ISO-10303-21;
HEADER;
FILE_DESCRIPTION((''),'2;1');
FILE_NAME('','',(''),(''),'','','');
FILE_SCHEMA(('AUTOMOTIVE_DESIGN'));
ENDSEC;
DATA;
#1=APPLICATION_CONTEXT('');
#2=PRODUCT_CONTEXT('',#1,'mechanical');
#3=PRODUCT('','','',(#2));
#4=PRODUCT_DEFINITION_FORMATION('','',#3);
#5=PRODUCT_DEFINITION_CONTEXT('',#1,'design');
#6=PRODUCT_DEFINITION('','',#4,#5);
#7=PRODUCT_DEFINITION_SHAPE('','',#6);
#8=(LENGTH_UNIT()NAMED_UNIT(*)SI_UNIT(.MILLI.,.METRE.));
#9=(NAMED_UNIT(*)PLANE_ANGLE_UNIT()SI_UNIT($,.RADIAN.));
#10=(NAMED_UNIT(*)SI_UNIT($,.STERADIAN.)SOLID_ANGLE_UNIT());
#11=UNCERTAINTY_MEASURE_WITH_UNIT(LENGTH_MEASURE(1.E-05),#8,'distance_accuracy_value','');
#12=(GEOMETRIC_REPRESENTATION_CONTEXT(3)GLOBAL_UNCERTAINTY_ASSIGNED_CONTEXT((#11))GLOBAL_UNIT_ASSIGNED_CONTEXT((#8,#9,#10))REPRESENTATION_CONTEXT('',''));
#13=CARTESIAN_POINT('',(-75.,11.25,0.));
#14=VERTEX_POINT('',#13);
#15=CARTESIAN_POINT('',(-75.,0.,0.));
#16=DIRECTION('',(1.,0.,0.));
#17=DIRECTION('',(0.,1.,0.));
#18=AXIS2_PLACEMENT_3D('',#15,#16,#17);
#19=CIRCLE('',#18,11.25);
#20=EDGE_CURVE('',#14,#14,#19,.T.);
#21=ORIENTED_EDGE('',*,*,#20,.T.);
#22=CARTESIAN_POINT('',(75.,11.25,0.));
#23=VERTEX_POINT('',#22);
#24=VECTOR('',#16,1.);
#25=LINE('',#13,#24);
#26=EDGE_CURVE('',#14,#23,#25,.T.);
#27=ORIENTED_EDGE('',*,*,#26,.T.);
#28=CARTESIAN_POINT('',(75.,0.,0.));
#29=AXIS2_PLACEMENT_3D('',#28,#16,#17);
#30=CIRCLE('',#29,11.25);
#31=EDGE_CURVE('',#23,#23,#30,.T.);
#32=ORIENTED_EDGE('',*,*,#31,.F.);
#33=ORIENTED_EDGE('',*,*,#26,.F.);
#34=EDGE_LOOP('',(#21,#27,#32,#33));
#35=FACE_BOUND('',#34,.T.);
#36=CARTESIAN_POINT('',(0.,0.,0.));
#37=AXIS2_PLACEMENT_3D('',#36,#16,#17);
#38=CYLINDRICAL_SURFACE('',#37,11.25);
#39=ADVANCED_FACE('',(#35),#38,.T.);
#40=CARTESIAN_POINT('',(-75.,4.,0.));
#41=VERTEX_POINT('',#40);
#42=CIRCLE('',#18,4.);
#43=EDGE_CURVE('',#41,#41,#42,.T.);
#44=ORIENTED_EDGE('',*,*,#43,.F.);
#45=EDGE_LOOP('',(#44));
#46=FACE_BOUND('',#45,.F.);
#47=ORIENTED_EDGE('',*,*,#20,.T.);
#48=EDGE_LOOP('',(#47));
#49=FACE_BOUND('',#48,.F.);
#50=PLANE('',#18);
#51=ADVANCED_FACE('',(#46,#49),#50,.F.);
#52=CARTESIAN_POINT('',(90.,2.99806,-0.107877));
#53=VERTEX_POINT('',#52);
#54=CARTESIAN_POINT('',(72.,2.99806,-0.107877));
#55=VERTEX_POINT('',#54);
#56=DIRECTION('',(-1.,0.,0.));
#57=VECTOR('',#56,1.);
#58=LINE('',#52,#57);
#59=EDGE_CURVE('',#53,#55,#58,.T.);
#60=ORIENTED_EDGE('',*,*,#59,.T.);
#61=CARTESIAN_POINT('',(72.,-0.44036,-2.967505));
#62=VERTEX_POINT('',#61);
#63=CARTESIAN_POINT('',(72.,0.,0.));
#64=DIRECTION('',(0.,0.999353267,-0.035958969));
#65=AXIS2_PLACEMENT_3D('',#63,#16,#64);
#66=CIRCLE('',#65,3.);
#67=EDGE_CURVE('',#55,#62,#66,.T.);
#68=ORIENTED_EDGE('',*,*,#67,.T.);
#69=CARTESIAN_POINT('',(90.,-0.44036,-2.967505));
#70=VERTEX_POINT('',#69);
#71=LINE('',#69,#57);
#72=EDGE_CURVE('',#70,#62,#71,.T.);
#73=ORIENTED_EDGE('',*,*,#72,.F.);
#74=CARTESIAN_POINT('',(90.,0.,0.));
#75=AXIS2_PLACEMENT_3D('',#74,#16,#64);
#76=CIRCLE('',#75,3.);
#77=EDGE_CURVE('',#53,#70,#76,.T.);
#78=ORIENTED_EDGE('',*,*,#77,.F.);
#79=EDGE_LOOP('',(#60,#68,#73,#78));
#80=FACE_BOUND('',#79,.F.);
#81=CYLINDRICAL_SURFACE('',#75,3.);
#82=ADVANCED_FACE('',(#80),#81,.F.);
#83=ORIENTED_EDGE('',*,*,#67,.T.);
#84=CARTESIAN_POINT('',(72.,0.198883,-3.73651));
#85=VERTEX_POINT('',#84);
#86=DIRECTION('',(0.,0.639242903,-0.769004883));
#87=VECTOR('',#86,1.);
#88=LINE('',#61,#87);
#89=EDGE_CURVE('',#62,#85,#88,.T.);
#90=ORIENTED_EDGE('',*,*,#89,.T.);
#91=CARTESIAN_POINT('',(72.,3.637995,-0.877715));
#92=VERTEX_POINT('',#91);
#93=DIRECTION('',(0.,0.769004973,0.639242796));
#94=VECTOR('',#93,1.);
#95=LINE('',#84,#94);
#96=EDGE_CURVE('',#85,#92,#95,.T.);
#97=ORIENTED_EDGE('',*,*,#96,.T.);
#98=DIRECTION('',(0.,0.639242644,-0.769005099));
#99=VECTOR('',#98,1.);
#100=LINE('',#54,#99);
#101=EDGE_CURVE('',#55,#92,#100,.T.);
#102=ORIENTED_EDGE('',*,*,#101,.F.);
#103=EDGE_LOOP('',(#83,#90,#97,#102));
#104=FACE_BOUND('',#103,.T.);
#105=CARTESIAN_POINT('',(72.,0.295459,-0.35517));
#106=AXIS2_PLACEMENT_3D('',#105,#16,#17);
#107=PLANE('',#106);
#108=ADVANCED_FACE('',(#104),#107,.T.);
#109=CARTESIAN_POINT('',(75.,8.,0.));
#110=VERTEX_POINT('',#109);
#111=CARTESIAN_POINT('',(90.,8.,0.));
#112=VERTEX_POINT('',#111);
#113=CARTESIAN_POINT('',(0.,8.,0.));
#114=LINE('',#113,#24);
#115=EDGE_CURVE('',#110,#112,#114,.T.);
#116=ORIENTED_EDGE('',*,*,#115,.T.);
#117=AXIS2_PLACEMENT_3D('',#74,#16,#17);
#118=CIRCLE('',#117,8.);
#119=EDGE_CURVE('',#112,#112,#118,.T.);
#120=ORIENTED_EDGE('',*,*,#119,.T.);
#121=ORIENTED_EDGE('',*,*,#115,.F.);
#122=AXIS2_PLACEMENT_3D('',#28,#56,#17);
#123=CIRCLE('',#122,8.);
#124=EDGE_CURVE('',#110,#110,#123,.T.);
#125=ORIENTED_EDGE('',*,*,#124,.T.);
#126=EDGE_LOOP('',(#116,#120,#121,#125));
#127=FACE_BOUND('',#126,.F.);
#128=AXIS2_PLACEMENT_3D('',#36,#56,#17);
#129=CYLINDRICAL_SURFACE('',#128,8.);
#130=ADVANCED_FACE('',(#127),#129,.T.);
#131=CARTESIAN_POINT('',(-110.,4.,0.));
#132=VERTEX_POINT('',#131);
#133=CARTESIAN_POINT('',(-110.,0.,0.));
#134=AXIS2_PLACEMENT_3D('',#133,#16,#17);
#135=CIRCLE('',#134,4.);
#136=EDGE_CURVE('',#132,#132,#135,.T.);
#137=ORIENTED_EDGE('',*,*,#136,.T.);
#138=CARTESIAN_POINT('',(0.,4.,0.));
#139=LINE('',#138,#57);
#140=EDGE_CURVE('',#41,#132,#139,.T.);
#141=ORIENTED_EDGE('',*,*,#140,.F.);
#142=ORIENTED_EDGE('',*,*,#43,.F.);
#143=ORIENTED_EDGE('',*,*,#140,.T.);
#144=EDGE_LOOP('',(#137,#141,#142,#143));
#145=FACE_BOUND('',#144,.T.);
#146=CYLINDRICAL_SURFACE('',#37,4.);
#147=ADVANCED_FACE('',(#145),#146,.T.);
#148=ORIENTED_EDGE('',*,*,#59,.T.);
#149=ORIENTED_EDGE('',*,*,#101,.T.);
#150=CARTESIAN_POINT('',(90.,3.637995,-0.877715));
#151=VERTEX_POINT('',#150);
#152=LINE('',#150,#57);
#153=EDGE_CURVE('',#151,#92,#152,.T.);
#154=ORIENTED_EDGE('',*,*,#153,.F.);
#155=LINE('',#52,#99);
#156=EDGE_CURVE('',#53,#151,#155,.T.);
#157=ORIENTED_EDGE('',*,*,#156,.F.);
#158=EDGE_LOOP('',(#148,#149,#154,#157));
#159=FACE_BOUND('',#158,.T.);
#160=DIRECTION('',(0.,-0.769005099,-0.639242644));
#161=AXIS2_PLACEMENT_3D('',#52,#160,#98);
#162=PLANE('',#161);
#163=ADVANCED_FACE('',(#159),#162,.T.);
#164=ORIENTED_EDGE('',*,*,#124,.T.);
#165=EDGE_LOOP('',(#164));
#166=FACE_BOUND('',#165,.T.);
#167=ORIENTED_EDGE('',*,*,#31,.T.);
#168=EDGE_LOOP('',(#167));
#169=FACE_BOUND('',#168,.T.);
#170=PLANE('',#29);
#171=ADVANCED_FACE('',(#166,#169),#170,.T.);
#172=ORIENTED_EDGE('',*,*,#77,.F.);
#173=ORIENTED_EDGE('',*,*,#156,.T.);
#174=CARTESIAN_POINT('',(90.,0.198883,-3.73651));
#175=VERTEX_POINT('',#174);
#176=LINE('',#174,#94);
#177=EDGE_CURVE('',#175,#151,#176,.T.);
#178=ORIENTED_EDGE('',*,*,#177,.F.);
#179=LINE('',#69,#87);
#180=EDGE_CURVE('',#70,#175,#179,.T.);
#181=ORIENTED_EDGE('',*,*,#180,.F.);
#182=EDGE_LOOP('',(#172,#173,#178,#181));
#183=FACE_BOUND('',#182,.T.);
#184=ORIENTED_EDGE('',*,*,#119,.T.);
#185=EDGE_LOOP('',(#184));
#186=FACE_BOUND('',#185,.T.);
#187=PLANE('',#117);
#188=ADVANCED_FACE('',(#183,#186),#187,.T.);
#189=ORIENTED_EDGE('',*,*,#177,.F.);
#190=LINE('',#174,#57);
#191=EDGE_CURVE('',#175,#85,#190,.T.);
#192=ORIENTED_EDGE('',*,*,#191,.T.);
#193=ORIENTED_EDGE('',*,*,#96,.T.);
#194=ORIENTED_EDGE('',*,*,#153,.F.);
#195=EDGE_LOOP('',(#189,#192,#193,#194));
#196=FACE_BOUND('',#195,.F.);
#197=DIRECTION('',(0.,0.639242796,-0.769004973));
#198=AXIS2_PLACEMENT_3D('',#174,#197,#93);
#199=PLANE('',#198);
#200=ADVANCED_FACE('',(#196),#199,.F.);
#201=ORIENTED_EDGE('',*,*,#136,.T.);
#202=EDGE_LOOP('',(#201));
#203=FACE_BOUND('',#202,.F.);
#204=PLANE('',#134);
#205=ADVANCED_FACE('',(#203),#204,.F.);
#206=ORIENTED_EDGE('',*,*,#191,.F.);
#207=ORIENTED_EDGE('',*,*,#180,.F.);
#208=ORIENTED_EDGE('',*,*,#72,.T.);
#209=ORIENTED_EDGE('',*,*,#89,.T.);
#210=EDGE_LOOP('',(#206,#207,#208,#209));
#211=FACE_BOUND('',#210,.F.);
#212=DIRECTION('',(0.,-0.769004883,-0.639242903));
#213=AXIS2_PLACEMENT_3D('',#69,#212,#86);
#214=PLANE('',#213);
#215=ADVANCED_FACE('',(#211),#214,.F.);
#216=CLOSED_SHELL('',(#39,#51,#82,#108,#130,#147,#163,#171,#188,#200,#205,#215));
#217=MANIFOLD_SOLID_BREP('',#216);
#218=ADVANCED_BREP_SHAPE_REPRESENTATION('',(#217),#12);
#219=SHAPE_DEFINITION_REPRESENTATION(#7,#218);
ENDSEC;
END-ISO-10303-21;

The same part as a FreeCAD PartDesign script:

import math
import FreeCAD as App
import Part
import Sketcher

V = App.Vector
Q = App.Units.Quantity

doc = App.newDocument("Part")
body = doc.addObject("PartDesign::Body", "Body")

# Sketch on YZ plane
sketch1 = doc.addObject("Sketcher::SketchObject", "Sketch")
body.addObject(sketch1)
sketch1.AttachmentSupport = (doc.YZ_Plane, [""])
sketch1.MapMode = "FlatFace"
sketch1.addGeometry(Part.Circle(V(0, 0, 0), V(0, 0, 1), 4), False)
sketch1.addConstraint([
    Sketcher.Constraint("Coincident", 0, 3, -1, 1),
    Sketcher.Constraint("Diameter", 0, Q("8 mm")),
])
pad1 = doc.addObject("PartDesign::Pad", "Pad")
body.addObject(pad1)
pad1.Profile = sketch1
pad1.Length = 110
pad1.Reversed = True

# Sketch on YZ plane
sketch2 = doc.addObject("Sketcher::SketchObject", "Sketch001")
body.addObject(sketch2)
sketch2.AttachmentSupport = (doc.YZ_Plane, [""])
sketch2.MapMode = "FlatFace"
sketch2.addGeometry(Part.Circle(V(0, 0, 0), V(0, 0, 1), 11), False)
sketch2.addConstraint([
    Sketcher.Constraint("Coincident", 0, 3, -1, 1),
    Sketcher.Constraint("Diameter", 0, Q("22.5 mm")),
])
pad2 = doc.addObject("PartDesign::Pad", "Pad001")
body.addObject(pad2)
pad2.Profile = sketch2
pad2.Length = 150
pad2.Midplane = True

# Sketch on YZ plane
sketch3 = doc.addObject("Sketcher::SketchObject", "Sketch002")
body.addObject(sketch3)
sketch3.AttachmentSupport = (doc.YZ_Plane, [""])
sketch3.MapMode = "FlatFace"
sketch3.addGeometry(Part.Circle(V(0, 0, 0), V(0, 0, 1), 8), False)
sketch3.addConstraint([
    Sketcher.Constraint("Coincident", 0, 3, -1, 1),
    Sketcher.Constraint("Diameter", 0, Q("16 mm")),
])
pad3 = doc.addObject("PartDesign::Pad", "Pad002")
body.addObject(pad3)
pad3.Profile = sketch3
pad3.Length = 90

# Sketch on YZ plane
sketch4 = doc.addObject("Sketcher::SketchObject", "Sketch003")
body.addObject(sketch4)
sketch4.AttachmentSupport = (doc.YZ_Plane, [""])
sketch4.MapMode = "FlatFace"
sketch4.AttachmentOffset = App.Placement(V(0, 0, 90), App.Rotation())
sketch4.addGeometry([
    Part.ArcOfCircle(Part.Circle(V(0, 0, 0), V(0, 0, 1), 3), math.radians(-2), math.radians(262)),
    Part.LineSegment(V(-0.4, -3, 0), V(0.2, -3.7, 0)),
    Part.LineSegment(V(0.2, -3.7, 0), V(3.6, -0.9, 0)),
    Part.LineSegment(V(3.6, -0.9, 0), V(3, -0.1, 0)),
], False)
sketch4.addConstraint([
    Sketcher.Constraint("Coincident", 0, 2, 1, 1),
    Sketcher.Constraint("Coincident", 1, 2, 2, 1),
    Sketcher.Constraint("Coincident", 2, 2, 3, 1),
    Sketcher.Constraint("Coincident", 3, 2, 0, 1),
    Sketcher.Constraint("Coincident", 0, 3, -1, 1),
    Sketcher.Constraint("Perpendicular", 1, 2),
    Sketcher.Constraint("Perpendicular", 2, 3),
    Sketcher.Constraint("Radius", 0, Q("3 mm")),
    Sketcher.Constraint("Distance", 1, Q("1 mm")),
    Sketcher.Constraint("Distance", 2, Q("4.472158 mm")),
    Sketcher.Constraint("DistanceX", 0, 2, -1, 1, Q("0.44036 mm")),
    Sketcher.Constraint("DistanceY", 1, 2, -1, 1, Q("3.73651 mm")),
])
pocket1 = doc.addObject("PartDesign::Pocket", "Pocket")
body.addObject(pocket1)
pocket1.Profile = sketch4
pocket1.Length = 18

doc.recompute()
